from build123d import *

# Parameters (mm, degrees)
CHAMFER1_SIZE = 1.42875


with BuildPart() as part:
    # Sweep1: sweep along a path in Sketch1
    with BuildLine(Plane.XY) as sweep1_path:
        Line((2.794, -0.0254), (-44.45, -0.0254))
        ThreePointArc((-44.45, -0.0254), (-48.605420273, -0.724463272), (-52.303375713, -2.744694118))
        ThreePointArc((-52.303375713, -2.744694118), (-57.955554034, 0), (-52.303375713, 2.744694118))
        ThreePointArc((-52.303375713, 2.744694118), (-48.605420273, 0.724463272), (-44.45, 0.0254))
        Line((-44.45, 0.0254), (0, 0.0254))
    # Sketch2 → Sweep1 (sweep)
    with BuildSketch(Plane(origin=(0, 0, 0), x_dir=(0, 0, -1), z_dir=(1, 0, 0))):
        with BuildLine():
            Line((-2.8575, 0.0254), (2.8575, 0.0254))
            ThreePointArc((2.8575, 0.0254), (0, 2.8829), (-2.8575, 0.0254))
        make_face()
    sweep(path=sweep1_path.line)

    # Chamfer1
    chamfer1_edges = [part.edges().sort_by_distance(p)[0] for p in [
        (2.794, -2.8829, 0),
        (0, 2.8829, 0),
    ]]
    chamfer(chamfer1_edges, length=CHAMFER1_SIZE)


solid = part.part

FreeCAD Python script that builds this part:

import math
import FreeCAD as App
import Part
import Sketcher

V = App.Vector
Q = App.Units.Quantity


def edges_at(feature, points):
    """Names of the edges that pass closest to the given points."""
    edges = feature.Shape.Edges
    near = lambda p: min(range(len(edges)), key=lambda i: edges[i].distToShape(Part.Vertex(*p))[0])
    return sorted({f"Edge{near(p) + 1}" for p in points})

doc = App.newDocument("Part")
body = doc.addObject("PartDesign::Body", "Body")

sketch1 = doc.addObject("Sketcher::SketchObject", "Sketch")
body.addObject(sketch1)
sketch1.AttachmentSupport = (doc.YZ_Plane, [""])
sketch1.MapMode = "FlatFace"
sketch1.addGeometry([
    Part.LineSegment(V(0, 2.9, 0), V(0, -2.9, 0)),
    Part.ArcOfCircle(Part.Circle(V(0, 0, 0), V(0, 0, 1), 2.9), math.radians(-90), math.radians(90)),
], False)
sketch1.addConstraint([
    Sketcher.Constraint("Coincident", 0, 1, 1, 2),
    Sketcher.Constraint("Coincident", 1, 1, 0, 2),
    Sketcher.Constraint("Vertical", 0),
    Sketcher.Constraint("PointOnObject", 1, 3, -1),
    Sketcher.Constraint("Vertical", 1, 3, 0, 1),
    Sketcher.Constraint("Radius", 1, Q("0.1125 in")),
    Sketcher.Constraint("DistanceX", -1, 1, 1, 3, Q("0.001 in")),
])

sketch2 = doc.addObject("Sketcher::SketchObject", "Sketch001")
body.addObject(sketch2)
sketch2.AttachmentSupport = (doc.XY_Plane, [""])
sketch2.MapMode = "FlatFace"
sketch2.addGeometry([
    Part.LineSegment(V(2.8, 0, 0), V(-44.5, 0, 0)),
    Part.ArcOfCircle(Part.Circle(V(-44.4, -12.7, 0), V(0, 0, 1), 12.7), math.radians(90), math.radians(128)),
    Part.ArcOfCircle(Part.Circle(V(-54.5, 0, 0), V(0, 0, 1), 3.5), math.radians(52), math.radians(308)),
    Part.ArcOfCircle(Part.Circle(V(-44.4, 12.7, 0), V(0, 0, 1), 12.7), math.radians(-128), math.radians(-90)),
    Part.LineSegment(V(-44.5, 0, 0), V(0, 0, 0)),
], False)
sketch2.addConstraint([
    Sketcher.Constraint("Tangent", 0, 2, 1, 1),
    Sketcher.Constraint("Tangent", 1, 2, 2, 2),
    Sketcher.Constraint("Tangent", 2, 1, 3, 1),
    Sketcher.Constraint("Tangent", 3, 2, 4, 1),
    Sketcher.Constraint("Horizontal", 0),
    Sketcher.Constraint("Horizontal", 4),
    Sketcher.Constraint("Equal", 1, 3),
    Sketcher.Constraint("Symmetric", 1, 3, 3, 3, -1),
    Sketcher.Constraint("PointOnObject", 4, 2, -2),
    Sketcher.Constraint("Radius", 1, Q("0.5 in")),
    Sketcher.Constraint("DistanceX", 0, 2, 0, 1, Q("1.86 in")),
    Sketcher.Constraint("DistanceX", 4, 1, 4, 2, Q("1.75 in")),
    Sketcher.Constraint("Radius", 2, Q("0.1375 in")),
    Sketcher.Constraint("DistanceY", 1, 3, -1, 1, Q("0.501 in")),
])
doc.recompute()

additivepipe = doc.addObject("PartDesign::AdditivePipe", "AdditivePipe")
body.addObject(additivepipe)
additivepipe.Profile = sketch1
additivepipe.Spine = (sketch2, ["Edge1", "Edge2", "Edge3", "Edge4", "Edge5"])
doc.recompute()

chamfer = doc.addObject("PartDesign::Chamfer", "Chamfer")
body.addObject(chamfer)
chamfer.Base = (additivepipe, edges_at(additivepipe, [(2.794, -2.883, 0), (0, 2.883, 0)]))
chamfer.Size = 1.42875

doc.recompute()
